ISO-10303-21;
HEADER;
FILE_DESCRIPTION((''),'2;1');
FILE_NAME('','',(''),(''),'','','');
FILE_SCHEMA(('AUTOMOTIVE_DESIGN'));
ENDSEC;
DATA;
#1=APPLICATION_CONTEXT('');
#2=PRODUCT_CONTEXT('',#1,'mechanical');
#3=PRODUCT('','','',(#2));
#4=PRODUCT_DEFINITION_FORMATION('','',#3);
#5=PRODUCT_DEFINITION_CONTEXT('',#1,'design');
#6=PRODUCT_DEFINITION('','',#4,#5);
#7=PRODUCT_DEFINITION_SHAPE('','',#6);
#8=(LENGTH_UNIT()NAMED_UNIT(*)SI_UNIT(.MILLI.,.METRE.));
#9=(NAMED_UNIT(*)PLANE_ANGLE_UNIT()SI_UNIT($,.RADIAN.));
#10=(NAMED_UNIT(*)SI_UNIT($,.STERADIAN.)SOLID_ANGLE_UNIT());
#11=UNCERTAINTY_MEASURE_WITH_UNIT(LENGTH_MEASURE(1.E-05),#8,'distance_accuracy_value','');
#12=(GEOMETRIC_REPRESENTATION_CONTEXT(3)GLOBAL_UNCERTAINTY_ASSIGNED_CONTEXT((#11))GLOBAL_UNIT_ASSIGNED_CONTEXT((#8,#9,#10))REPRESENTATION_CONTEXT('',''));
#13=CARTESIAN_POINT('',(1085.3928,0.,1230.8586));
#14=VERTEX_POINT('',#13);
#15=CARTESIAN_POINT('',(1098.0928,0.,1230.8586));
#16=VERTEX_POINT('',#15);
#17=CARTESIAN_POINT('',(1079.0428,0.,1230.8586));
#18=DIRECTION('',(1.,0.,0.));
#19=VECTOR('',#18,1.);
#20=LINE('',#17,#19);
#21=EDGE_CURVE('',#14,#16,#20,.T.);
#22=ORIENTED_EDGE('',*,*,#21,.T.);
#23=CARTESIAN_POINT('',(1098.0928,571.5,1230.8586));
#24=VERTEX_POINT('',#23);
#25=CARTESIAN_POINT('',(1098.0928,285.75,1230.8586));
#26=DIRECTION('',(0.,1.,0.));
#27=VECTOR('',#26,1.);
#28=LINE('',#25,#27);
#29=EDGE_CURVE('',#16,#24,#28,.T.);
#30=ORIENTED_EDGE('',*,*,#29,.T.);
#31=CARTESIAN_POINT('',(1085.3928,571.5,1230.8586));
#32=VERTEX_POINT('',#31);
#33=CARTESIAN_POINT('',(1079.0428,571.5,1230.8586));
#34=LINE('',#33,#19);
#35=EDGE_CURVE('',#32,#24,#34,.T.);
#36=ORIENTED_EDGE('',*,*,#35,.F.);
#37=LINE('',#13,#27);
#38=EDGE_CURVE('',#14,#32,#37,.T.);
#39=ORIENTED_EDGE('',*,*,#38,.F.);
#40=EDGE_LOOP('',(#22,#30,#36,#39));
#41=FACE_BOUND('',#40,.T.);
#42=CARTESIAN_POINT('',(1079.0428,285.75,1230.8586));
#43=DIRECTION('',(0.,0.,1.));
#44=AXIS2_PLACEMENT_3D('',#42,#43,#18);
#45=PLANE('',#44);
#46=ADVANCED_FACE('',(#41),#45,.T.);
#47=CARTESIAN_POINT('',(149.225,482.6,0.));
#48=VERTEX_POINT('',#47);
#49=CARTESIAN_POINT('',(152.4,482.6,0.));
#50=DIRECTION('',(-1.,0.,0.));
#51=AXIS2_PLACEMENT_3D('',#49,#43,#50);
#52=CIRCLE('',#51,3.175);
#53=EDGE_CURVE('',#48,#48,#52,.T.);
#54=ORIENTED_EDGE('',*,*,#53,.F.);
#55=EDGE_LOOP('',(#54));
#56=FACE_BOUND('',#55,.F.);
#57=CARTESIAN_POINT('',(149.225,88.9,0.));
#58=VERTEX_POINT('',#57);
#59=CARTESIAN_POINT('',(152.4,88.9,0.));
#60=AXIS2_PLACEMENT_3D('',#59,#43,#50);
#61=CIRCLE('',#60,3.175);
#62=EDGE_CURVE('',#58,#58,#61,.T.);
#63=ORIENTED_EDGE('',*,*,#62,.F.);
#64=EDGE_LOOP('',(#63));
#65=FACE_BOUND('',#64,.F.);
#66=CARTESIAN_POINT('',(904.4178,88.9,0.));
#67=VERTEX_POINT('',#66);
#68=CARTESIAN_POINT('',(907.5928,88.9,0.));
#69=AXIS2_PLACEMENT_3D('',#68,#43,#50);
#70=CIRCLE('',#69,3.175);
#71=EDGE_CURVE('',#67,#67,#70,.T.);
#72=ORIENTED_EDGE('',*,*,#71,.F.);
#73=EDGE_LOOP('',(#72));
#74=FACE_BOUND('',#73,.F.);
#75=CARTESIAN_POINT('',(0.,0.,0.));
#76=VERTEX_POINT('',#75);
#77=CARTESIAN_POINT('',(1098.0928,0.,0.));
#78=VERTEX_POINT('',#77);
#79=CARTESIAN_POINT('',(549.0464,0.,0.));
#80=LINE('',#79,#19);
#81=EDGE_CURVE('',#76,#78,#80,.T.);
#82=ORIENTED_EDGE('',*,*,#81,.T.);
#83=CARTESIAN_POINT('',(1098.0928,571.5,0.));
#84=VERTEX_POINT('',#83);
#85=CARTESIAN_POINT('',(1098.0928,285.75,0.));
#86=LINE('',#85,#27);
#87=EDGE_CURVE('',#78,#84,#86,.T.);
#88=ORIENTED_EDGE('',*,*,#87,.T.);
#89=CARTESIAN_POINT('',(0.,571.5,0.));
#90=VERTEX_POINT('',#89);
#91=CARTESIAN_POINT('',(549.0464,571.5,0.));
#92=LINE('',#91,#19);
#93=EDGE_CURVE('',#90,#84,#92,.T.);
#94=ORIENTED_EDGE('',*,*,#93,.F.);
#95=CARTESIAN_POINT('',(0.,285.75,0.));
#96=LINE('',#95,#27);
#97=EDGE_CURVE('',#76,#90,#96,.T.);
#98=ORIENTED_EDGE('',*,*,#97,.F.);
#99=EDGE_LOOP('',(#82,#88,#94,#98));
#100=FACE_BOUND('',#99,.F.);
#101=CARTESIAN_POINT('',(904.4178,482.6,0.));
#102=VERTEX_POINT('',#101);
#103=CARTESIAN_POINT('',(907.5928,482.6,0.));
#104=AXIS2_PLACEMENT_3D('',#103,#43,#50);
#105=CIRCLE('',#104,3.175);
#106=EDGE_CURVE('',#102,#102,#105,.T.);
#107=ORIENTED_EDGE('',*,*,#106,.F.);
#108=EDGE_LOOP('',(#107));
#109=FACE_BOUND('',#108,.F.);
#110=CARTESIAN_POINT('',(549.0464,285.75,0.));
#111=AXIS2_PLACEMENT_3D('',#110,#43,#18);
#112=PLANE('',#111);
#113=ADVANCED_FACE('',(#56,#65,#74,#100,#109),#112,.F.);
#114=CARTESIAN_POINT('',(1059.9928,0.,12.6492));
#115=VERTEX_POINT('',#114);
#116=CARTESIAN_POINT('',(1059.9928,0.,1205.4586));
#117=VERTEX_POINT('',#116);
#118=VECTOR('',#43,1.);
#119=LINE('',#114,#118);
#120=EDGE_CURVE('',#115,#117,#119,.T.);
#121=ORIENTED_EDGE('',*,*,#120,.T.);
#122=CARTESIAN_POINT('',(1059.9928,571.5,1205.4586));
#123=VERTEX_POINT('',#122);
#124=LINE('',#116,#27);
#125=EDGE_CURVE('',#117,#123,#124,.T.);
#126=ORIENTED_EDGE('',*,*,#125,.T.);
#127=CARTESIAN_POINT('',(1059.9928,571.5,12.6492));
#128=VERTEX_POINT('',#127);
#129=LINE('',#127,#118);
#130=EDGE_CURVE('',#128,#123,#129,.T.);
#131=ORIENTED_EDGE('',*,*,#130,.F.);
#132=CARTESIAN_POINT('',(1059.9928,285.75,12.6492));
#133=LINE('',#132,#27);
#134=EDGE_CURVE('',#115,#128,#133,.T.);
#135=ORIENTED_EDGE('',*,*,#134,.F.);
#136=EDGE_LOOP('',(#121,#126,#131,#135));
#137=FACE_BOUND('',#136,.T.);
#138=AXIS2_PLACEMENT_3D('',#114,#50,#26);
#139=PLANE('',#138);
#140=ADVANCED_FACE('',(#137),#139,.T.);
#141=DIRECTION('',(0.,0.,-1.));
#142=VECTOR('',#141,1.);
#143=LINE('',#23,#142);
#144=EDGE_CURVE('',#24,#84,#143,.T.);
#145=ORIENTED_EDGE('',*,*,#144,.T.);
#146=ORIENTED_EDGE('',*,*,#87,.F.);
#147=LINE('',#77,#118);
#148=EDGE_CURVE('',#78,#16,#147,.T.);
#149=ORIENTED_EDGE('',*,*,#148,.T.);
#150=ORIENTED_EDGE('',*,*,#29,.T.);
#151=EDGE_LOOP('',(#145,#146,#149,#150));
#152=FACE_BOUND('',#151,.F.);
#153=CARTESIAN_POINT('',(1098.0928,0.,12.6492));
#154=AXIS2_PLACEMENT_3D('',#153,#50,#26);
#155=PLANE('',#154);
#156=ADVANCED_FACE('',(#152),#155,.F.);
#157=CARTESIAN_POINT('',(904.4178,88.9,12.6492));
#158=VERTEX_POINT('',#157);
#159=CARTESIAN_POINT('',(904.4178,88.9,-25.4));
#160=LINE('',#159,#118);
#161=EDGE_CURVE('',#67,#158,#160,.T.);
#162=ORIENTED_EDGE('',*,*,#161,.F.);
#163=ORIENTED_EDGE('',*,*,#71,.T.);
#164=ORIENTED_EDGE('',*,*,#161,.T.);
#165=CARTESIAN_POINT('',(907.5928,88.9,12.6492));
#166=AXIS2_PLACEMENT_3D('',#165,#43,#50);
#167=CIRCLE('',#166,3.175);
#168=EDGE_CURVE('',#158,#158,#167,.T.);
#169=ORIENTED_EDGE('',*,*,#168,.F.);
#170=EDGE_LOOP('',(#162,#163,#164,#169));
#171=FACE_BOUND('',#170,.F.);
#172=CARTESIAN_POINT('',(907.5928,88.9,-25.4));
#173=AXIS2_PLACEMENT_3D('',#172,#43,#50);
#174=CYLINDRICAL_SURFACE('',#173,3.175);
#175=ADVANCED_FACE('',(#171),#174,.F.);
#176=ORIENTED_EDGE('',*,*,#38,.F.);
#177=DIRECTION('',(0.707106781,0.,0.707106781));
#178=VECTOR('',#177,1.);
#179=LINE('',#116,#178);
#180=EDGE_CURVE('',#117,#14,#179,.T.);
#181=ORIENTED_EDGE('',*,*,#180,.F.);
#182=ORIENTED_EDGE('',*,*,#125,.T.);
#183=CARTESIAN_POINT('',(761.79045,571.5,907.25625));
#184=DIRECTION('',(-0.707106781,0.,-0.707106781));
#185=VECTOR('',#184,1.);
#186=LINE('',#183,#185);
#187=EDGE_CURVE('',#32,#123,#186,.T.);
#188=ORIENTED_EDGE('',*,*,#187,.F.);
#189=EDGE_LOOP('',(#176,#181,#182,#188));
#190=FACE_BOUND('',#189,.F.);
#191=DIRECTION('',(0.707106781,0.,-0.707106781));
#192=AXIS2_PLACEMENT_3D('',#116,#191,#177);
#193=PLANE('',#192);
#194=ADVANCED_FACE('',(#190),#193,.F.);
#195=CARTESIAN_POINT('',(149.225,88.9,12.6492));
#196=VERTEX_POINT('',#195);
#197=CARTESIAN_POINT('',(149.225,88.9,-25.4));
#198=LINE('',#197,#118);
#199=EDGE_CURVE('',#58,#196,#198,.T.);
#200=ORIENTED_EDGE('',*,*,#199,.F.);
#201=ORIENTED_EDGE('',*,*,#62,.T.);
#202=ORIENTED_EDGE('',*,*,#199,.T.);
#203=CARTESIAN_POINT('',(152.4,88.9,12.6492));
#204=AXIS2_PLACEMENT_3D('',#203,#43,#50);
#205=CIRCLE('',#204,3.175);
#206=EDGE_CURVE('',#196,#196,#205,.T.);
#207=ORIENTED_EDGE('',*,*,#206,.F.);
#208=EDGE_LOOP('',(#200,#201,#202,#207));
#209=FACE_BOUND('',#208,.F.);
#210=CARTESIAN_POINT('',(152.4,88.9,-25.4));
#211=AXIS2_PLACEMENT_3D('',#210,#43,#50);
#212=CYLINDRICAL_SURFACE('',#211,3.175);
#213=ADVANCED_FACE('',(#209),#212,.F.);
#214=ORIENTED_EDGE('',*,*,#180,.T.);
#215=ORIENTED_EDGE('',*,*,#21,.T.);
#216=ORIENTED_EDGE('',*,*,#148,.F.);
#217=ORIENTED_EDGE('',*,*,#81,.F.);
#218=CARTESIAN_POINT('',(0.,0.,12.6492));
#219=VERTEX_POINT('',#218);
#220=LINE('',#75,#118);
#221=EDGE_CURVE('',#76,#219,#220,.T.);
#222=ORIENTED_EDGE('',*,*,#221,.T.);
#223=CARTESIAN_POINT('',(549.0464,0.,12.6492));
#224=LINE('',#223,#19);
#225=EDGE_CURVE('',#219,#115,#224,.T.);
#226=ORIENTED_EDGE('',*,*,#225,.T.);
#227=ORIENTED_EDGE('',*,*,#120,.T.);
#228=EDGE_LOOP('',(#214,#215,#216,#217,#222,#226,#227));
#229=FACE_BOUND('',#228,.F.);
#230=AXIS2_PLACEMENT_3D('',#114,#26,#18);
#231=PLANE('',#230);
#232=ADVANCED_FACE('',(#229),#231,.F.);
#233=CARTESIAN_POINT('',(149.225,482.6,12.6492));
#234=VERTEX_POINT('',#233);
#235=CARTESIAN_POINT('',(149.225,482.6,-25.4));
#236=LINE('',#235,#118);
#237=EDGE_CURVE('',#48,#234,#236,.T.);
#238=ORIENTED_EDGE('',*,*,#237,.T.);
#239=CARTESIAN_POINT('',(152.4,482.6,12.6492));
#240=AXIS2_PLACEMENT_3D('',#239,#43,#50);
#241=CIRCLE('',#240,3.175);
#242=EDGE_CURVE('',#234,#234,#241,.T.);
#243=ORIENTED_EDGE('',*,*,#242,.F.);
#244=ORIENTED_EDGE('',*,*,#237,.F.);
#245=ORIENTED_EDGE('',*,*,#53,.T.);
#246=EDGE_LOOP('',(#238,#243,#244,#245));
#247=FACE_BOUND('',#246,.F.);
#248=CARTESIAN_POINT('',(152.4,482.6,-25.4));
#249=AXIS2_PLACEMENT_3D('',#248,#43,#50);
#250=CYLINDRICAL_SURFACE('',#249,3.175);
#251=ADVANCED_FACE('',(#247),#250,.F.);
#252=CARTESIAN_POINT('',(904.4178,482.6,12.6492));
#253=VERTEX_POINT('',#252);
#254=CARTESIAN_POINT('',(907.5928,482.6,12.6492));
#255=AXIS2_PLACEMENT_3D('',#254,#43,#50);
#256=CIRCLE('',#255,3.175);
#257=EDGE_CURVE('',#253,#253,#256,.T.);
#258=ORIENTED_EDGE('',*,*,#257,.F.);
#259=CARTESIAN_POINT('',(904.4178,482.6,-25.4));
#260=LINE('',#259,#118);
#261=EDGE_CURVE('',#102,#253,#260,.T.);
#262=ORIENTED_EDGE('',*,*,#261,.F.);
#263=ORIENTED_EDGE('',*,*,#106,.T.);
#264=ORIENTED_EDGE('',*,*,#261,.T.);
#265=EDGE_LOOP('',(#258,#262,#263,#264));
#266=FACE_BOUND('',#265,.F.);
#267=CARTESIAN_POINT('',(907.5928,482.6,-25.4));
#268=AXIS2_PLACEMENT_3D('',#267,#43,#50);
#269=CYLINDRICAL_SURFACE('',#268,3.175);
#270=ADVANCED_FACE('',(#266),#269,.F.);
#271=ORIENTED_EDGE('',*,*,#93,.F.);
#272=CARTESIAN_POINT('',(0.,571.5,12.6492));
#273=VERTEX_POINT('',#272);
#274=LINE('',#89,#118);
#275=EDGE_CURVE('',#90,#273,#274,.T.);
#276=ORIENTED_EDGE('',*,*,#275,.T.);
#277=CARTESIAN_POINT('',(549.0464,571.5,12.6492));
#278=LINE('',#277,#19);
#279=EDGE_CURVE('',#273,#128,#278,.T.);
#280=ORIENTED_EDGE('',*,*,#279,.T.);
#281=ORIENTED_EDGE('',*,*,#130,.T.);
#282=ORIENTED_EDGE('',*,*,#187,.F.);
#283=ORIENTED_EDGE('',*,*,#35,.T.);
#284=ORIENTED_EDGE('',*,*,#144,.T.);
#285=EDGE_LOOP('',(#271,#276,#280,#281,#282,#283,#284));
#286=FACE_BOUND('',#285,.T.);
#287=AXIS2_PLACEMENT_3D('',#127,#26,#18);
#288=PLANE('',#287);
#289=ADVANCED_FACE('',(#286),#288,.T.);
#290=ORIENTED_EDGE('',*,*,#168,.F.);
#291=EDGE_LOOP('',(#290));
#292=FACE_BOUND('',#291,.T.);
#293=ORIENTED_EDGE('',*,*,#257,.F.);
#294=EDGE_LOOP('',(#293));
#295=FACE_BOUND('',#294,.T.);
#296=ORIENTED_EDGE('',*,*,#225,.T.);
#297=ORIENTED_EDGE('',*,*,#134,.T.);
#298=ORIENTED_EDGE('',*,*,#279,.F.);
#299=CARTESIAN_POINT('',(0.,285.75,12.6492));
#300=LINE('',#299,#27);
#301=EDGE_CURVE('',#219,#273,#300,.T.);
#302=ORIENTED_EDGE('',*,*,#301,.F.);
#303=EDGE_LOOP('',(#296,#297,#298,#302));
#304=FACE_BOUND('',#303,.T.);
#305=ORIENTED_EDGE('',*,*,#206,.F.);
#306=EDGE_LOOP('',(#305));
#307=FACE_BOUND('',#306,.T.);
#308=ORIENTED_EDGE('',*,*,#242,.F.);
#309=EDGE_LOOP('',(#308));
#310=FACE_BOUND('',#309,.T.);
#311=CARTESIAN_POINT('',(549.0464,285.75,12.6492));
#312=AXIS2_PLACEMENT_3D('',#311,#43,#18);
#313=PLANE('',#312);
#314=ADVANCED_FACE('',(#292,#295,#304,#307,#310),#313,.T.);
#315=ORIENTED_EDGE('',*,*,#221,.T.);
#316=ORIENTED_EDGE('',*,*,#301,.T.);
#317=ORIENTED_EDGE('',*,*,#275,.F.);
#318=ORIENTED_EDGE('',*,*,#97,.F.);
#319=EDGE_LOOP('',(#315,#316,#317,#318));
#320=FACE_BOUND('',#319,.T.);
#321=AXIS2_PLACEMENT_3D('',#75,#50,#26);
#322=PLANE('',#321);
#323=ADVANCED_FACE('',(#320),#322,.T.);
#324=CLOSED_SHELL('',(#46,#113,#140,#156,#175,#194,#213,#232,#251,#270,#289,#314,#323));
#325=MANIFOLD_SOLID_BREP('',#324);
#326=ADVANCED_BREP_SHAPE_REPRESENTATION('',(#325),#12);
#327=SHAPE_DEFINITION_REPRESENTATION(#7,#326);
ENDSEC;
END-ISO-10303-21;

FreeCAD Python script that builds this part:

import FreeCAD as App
import Part
import Sketcher

V = App.Vector
Q = App.Units.Quantity


def add_polygon(sketch, points):
    """Adds a closed chain of lines whose ends are joined by coincident constraints."""
    first, n = sketch.GeometryCount, len(points)
    for a, b in zip(points, points[1:] + points[:1]):
        sketch.addGeometry(Part.LineSegment(App.Vector(*a, 0), App.Vector(*b, 0)), False)
    for i in range(n):
        sketch.addConstraint(Sketcher.Constraint("Coincident", first + i, 2, first + (i + 1) % n, 1))

doc = App.newDocument("Part")
body = doc.addObject("PartDesign::Body", "Body")

sketch1 = doc.addObject("Sketcher::SketchObject", "Sketch")
body.addObject(sketch1)
sketch1.AttachmentSupport = (doc.XY_Plane, [""])
sketch1.MapMode = "FlatFace"
add_polygon(sketch1, [(0, 572), (0, 0), (1098, 0), (1098, 572)])
sketch1.addConstraint([
    Sketcher.Constraint("Vertical", 0),
    Sketcher.Constraint("Horizontal", 1),
    Sketcher.Constraint("Vertical", 2),
    Sketcher.Constraint("Horizontal", 3),
    Sketcher.Constraint("Coincident", 0, 2, -1, 1),
    Sketcher.Constraint("DistanceY", 0, 2, 0, 1, Q("22.5 in")),
    Sketcher.Constraint("DistanceX", 1, 1, 1, 2, Q("43.232 in")),
])
pad1 = doc.addObject("PartDesign::Pad", "Pad")
body.addObject(pad1)
pad1.Profile = sketch1
pad1.Length = Q("0.498 in")

sketch2 = doc.addObject("Sketcher::SketchObject", "Sketch001")
body.addObject(sketch2)
sketch2.AttachmentSupport = (doc.XY_Plane, [""])
sketch2.MapMode = "FlatFace"
sketch2.AttachmentOffset = App.Placement(V(0, 0, 0.498 * 25.4), App.Rotation())
add_polygon(sketch2, [(1060, 572), (1060, 0), (1098, 0), (1098, 572)])
sketch2.addConstraint([
    Sketcher.Constraint("Vertical", 0),
    Sketcher.Constraint("Horizontal", 1),
    Sketcher.Constraint("Vertical", 2),
    Sketcher.Constraint("Horizontal", 3),
    Sketcher.Constraint("PointOnObject", 0, 2, -1),
    Sketcher.Constraint("DistanceX", 1, 1, 1, 2, Q("1.5 in")),
    Sketcher.Constraint("DistanceY", 0, 2, 0, 1, Q("22.5 in")),
    Sketcher.Constraint("DistanceX", -1, 1, 0, 2, Q("41.732 in")),
])
pad2 = doc.addObject("PartDesign::Pad", "Pad001")
body.addObject(pad2)
pad2.Profile = sketch2
pad2.Length = Q("47.961 in")

sketch3 = doc.addObject("Sketcher::SketchObject", "Sketch002")
body.addObject(sketch3)
sketch3.AttachmentSupport = (doc.XZ_Plane, [""])
sketch3.MapMode = "FlatFace"
add_polygon(sketch3, [(1060, 1205), (1085, 1231), (1060, 1231)])
sketch3.addConstraint([
    Sketcher.Constraint("Horizontal", 1),
    Sketcher.Constraint("Vertical", 2),
    Sketcher.Constraint("Equal", 1, 2),
    Sketcher.Constraint("DistanceX", 1, 2, 1, 1, Q("1 in")),
    Sketcher.Constraint("DistanceX", -1, 1, 0, 2, Q("42.732 in")),
    Sketcher.Constraint("DistanceY", -1, 1, 0, 2, Q("48.459 in")),
])
pocket1 = doc.addObject("PartDesign::Pocket", "Pocket")
body.addObject(pocket1)
pocket1.Profile = sketch3
pocket1.Length = Q("50 in")

sketch4 = doc.addObject("Sketcher::SketchObject", "Sketch003")
body.addObject(sketch4)
sketch4.AttachmentSupport = (doc.XY_Plane, [""])
sketch4.MapMode = "FlatFace"
sketch4.addGeometry([
    Part.Circle(V(152.4, 482.6, 0), V(0, 0, 1), 3.2),
    Part.Circle(V(907.6, 482.6, 0), V(0, 0, 1), 3.2),
    Part.Circle(V(907.6, 88.9, 0), V(0, 0, 1), 3.2),
    Part.Circle(V(152.4, 88.9, 0), V(0, 0, 1), 3.2),
], False)
sketch4.addConstraint([
    Sketcher.Constraint("Equal", 0, 1),
    Sketcher.Constraint("Equal", 1, 2),
    Sketcher.Constraint("Equal", 2, 3),
    Sketcher.Constraint("Horizontal", 0, 3, 1, 3),
    Sketcher.Constraint("Horizontal", 2, 3, 3, 3),
    Sketcher.Constraint("Vertical", 1, 3, 2, 3),
    Sketcher.Constraint("Vertical", 0, 3, 3, 3),
    Sketcher.Constraint("Diameter", 0, Q("0.25 in")),
    Sketcher.Constraint("DistanceX", -1, 1, 0, 3, Q("6 in")),
    Sketcher.Constraint("DistanceY", -1, 1, 0, 3, Q("19 in")),
    Sketcher.Constraint("DistanceY", -1, 1, 2, 3, Q("3.5 in")),
    Sketcher.Constraint("DistanceX", -1, 1, 1, 3, Q("35.732 in")),
])
doc.recompute()
hole = doc.addObject("PartDesign::Hole", "Hole")
body.addObject(hole)
hole.Profile = sketch4
hole.ThreadType = "None"
hole.Diameter = Q("0.25 in")
hole.DepthType = "Dimension"
hole.Depth = Q("1 in")
hole.DrillPoint = "Angled"
hole.DrillPointAngle = 118
hole.Reversed = True

doc.recompute()
